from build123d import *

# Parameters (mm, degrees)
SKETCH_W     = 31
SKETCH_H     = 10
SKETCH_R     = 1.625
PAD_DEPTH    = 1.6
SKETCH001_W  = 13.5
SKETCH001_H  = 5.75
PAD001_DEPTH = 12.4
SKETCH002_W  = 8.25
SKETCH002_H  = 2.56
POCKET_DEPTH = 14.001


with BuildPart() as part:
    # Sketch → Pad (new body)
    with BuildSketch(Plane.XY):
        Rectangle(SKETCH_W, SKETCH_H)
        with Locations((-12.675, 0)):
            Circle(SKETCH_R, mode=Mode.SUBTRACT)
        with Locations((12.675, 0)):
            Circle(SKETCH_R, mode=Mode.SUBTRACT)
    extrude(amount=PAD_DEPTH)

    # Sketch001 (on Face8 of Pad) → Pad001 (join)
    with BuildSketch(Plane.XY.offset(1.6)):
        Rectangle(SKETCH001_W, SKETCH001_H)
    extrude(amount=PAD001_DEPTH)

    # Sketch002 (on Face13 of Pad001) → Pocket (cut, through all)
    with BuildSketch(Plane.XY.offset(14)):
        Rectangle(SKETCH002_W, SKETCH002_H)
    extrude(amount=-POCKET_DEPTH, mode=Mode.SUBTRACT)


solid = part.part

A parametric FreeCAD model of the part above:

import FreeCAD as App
import Part
import Sketcher
from FreeCAD import Vector


def add_polygon(sketch, points):
    """Adds a closed chain of lines whose ends are joined by coincident constraints."""
    first, n = sketch.GeometryCount, len(points)
    for a, b in zip(points, points[1:] + points[:1]):
        sketch.addGeometry(Part.LineSegment(App.Vector(*a, 0), App.Vector(*b, 0)), False)
    for i in range(n):
        sketch.addConstraint(Sketcher.Constraint("Coincident", first + i, 2, first + (i + 1) % n, 1))

doc = App.newDocument("Part")
body = doc.addObject("PartDesign::Body", "Body")

sketch1 = body.newObject("Sketcher::SketchObject", "Sketch")
sketch1.AttachmentSupport = (doc.getObject("XY_Plane"), [""])
sketch1.MapMode = "FlatFace"
add_polygon(sketch1, [(-15.5, 5), (-15.5, -5), (15.5, -5), (15.5, 5)])
sketch1.addGeometry(Part.Circle(Vector(-12.7, 0, 0), Vector(0, 0, 1), 1.6), False)
sketch1.addGeometry(Part.Circle(Vector(12.7, 0, 0), Vector(0, 0, 1), 1.6), False)
sketch1.addConstraint([
    Sketcher.Constraint("Vertical", 0),
    Sketcher.Constraint("Horizontal", 1),
    Sketcher.Constraint("Vertical", 2),
    Sketcher.Constraint("Horizontal", 3),
    Sketcher.Constraint("Equal", 4, 5),
    Sketcher.Constraint("Symmetric", 4, 3, 5, 3, -1, 1),
    Sketcher.Constraint("Symmetric", 0, 2, 2, 2, -1, 1),
    Sketcher.Constraint("PointOnObject", 4, 3, -1),
    Sketcher.Constraint("Diameter", 4, 3.25),
    Sketcher.Constraint("DistanceX", 1, 1, 1, 2, 31.0),
    Sketcher.Constraint("DistanceY", 0, 2, 0, 1, 10.0),
    Sketcher.Constraint("DistanceX", 4, 3, 5, 3, 25.35),
])
pad1 = body.newObject("PartDesign::Pad", "Pad")
pad1.Profile = sketch1
pad1.Length = 1.6

sketch2 = body.newObject("Sketcher::SketchObject", "Sketch001")
sketch2.AttachmentSupport = (doc.getObject("XY_Plane"), [""])
sketch2.MapMode = "FlatFace"
sketch2.AttachmentOffset = App.Placement(Vector(0, 0, 1.6), App.Rotation())
add_polygon(sketch2, [(-7, 3), (-7, -3), (7, -3), (7, 3)])
sketch2.addConstraint([
    Sketcher.Constraint("Vertical", 0),
    Sketcher.Constraint("Horizontal", 1),
    Sketcher.Constraint("Vertical", 2),
    Sketcher.Constraint("Horizontal", 3),
    Sketcher.Constraint("Symmetric", 0, 2, 2, 2, -1, 1),
    Sketcher.Constraint("DistanceX", 1, 1, 1, 2, 13.5),
    Sketcher.Constraint("DistanceY", 0, 2, 0, 1, 5.75),
])
pad2 = body.newObject("PartDesign::Pad", "Pad001")
pad2.Profile = sketch2
pad2.Length = 12.4

sketch3 = body.newObject("Sketcher::SketchObject", "Sketch002")
sketch3.AttachmentSupport = (doc.getObject("XY_Plane"), [""])
sketch3.MapMode = "FlatFace"
sketch3.AttachmentOffset = App.Placement(Vector(0, 0, 14), App.Rotation())
add_polygon(sketch3, [(-4.1, 1.3), (-4.1, -1.3), (4.1, -1.3), (4.1, 1.3)])
sketch3.addConstraint([
    Sketcher.Constraint("Vertical", 0),
    Sketcher.Constraint("Horizontal", 1),
    Sketcher.Constraint("Vertical", 2),
    Sketcher.Constraint("Horizontal", 3),
    Sketcher.Constraint("Symmetric", 0, 2, 2, 2, -1, 1),
    Sketcher.Constraint("DistanceX", 1, 1, 1, 2, 8.25),
    Sketcher.Constraint("DistanceY", 0, 2, 0, 1, 2.56),
])
pocket1 = body.newObject("PartDesign::Pocket", "Pocket")
pocket1.Profile = sketch3
pocket1.Type = "ThroughAll"

doc.recompute()
